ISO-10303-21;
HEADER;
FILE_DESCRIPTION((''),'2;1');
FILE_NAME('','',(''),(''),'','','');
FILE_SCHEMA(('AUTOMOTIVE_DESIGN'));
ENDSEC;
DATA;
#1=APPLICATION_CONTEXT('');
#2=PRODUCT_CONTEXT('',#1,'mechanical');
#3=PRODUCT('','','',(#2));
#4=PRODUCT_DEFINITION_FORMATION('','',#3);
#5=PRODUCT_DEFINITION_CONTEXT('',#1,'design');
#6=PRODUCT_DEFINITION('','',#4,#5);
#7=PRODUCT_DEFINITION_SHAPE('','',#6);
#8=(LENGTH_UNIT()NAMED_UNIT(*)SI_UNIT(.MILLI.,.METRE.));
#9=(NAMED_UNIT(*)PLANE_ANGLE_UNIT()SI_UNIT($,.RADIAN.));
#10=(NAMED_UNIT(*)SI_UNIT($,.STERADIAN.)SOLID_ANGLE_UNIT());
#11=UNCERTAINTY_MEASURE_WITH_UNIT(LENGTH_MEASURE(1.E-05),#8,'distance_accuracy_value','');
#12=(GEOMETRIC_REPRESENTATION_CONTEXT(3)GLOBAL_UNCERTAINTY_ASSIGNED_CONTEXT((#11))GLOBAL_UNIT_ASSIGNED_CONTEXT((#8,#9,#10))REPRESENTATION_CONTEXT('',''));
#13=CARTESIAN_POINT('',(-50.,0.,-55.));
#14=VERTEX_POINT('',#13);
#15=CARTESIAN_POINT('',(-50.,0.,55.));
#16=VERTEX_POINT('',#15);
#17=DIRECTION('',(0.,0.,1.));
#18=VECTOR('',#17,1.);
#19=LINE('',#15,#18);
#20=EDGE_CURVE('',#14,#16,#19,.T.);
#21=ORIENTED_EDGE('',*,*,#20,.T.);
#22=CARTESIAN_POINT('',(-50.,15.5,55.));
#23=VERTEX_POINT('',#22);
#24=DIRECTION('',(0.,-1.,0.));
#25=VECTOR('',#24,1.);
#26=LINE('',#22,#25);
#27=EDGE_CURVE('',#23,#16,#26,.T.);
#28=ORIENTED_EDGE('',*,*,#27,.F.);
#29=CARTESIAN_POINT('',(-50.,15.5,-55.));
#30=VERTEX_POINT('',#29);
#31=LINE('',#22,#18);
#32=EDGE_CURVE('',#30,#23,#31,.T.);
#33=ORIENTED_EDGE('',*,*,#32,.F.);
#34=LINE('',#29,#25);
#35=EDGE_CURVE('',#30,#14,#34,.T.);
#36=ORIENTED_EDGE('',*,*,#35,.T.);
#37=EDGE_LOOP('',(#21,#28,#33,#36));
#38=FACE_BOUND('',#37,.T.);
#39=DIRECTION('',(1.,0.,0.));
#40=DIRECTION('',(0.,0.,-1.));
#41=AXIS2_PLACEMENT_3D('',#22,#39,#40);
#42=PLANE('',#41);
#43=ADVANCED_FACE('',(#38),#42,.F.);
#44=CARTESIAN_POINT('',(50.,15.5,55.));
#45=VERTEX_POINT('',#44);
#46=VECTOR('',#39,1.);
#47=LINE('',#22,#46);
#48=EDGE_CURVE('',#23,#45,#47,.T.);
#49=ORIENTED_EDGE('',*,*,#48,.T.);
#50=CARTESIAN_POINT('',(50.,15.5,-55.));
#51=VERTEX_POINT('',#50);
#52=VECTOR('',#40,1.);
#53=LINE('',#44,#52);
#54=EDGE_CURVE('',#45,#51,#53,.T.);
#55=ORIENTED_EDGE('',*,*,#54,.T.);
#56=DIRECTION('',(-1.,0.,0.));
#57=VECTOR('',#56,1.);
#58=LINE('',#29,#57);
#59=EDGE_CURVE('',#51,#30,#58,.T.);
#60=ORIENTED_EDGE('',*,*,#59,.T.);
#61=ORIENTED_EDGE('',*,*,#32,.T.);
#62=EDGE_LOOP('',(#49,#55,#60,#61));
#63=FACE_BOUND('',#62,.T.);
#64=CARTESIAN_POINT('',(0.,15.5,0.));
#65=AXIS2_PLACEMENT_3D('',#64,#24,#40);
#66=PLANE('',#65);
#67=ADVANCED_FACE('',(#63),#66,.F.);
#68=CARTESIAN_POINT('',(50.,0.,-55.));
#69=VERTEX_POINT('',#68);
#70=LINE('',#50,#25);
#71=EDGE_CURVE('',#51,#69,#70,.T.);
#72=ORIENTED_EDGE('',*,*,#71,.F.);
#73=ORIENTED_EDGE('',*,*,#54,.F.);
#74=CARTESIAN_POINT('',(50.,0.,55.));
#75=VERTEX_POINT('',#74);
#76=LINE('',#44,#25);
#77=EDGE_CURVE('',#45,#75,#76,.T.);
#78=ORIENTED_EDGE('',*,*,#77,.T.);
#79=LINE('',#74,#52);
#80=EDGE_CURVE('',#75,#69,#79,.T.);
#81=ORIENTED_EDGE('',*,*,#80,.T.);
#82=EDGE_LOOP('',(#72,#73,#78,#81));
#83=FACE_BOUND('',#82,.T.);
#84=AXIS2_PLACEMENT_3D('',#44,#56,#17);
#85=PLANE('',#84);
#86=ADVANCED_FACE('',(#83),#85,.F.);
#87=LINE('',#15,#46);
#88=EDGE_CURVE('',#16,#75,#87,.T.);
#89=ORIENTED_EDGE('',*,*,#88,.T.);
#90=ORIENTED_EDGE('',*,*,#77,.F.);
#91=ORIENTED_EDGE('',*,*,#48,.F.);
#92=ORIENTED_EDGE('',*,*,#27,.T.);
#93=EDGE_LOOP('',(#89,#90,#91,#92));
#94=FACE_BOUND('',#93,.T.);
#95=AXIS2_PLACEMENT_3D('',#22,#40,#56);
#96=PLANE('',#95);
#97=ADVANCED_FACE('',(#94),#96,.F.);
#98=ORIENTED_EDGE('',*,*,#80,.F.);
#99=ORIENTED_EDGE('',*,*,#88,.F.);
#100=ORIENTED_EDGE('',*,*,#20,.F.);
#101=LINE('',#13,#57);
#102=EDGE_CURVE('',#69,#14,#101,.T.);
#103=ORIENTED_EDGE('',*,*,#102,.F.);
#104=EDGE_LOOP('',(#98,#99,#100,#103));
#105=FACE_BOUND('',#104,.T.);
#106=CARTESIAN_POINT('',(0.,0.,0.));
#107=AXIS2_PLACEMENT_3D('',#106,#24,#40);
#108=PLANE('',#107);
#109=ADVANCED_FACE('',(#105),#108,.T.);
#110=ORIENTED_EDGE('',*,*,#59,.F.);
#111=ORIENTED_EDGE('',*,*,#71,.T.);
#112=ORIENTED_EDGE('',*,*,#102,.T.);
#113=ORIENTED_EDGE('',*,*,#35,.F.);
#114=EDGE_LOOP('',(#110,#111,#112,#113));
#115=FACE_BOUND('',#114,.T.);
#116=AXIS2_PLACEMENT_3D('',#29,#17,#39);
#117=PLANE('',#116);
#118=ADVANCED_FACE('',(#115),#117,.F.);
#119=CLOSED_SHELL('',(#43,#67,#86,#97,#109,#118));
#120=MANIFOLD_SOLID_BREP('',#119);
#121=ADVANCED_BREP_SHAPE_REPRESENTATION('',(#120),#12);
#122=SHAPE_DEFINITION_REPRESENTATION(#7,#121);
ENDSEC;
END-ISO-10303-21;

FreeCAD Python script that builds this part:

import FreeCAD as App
import Part
import Sketcher
from FreeCAD import Vector
Q = App.Units.Quantity

doc = App.newDocument("Part")
body = doc.addObject("PartDesign::Body", "Body")

# Sketch on XZ plane
sketch1 = body.newObject("Sketcher::SketchObject", "Sketch")
sketch1.AttachmentSupport = (doc.getObject("XZ_Plane"), [""])
sketch1.MapMode = "FlatFace"
sketch1.addGeometry(Part.LineSegment(Vector(-50, -55, 0), Vector(-50, 55, 0)), False)
sketch1.addGeometry(Part.LineSegment(Vector(-50, 55, 0), Vector(50, 55, 0)), False)
sketch1.addGeometry(Part.LineSegment(Vector(50, 55, 0), Vector(50, -55, 0)), False)
sketch1.addGeometry(Part.LineSegment(Vector(50, -55, 0), Vector(-50, -55, 0)), False)
sketch1.addConstraint(Sketcher.Constraint("Coincident", 0, 2, 1, 1))
sketch1.addConstraint(Sketcher.Constraint("Coincident", 1, 2, 2, 1))
sketch1.addConstraint(Sketcher.Constraint("Coincident", 2, 2, 3, 1))
sketch1.addConstraint(Sketcher.Constraint("Coincident", 3, 2, 0, 1))
sketch1.addConstraint(Sketcher.Constraint("Vertical", 0))
sketch1.addConstraint(Sketcher.Constraint("Horizontal", 1))
sketch1.addConstraint(Sketcher.Constraint("Vertical", 2))
sketch1.addConstraint(Sketcher.Constraint("Horizontal", 3))
sketch1.addConstraint(Sketcher.Constraint("Symmetric", 0, 2, 2, 2, -1, 1))
sketch1.addConstraint(Sketcher.Constraint("DistanceX", 1, 1, 1, 2, Q("100 mm")))
sketch1.addConstraint(Sketcher.Constraint("DistanceY", 0, 1, 0, 2, Q("110 mm")))
pad1 = body.newObject("PartDesign::Pad", "Pad")
pad1.Profile = sketch1
pad1.Length = 15.5
pad1.Reversed = True

doc.recompute()
